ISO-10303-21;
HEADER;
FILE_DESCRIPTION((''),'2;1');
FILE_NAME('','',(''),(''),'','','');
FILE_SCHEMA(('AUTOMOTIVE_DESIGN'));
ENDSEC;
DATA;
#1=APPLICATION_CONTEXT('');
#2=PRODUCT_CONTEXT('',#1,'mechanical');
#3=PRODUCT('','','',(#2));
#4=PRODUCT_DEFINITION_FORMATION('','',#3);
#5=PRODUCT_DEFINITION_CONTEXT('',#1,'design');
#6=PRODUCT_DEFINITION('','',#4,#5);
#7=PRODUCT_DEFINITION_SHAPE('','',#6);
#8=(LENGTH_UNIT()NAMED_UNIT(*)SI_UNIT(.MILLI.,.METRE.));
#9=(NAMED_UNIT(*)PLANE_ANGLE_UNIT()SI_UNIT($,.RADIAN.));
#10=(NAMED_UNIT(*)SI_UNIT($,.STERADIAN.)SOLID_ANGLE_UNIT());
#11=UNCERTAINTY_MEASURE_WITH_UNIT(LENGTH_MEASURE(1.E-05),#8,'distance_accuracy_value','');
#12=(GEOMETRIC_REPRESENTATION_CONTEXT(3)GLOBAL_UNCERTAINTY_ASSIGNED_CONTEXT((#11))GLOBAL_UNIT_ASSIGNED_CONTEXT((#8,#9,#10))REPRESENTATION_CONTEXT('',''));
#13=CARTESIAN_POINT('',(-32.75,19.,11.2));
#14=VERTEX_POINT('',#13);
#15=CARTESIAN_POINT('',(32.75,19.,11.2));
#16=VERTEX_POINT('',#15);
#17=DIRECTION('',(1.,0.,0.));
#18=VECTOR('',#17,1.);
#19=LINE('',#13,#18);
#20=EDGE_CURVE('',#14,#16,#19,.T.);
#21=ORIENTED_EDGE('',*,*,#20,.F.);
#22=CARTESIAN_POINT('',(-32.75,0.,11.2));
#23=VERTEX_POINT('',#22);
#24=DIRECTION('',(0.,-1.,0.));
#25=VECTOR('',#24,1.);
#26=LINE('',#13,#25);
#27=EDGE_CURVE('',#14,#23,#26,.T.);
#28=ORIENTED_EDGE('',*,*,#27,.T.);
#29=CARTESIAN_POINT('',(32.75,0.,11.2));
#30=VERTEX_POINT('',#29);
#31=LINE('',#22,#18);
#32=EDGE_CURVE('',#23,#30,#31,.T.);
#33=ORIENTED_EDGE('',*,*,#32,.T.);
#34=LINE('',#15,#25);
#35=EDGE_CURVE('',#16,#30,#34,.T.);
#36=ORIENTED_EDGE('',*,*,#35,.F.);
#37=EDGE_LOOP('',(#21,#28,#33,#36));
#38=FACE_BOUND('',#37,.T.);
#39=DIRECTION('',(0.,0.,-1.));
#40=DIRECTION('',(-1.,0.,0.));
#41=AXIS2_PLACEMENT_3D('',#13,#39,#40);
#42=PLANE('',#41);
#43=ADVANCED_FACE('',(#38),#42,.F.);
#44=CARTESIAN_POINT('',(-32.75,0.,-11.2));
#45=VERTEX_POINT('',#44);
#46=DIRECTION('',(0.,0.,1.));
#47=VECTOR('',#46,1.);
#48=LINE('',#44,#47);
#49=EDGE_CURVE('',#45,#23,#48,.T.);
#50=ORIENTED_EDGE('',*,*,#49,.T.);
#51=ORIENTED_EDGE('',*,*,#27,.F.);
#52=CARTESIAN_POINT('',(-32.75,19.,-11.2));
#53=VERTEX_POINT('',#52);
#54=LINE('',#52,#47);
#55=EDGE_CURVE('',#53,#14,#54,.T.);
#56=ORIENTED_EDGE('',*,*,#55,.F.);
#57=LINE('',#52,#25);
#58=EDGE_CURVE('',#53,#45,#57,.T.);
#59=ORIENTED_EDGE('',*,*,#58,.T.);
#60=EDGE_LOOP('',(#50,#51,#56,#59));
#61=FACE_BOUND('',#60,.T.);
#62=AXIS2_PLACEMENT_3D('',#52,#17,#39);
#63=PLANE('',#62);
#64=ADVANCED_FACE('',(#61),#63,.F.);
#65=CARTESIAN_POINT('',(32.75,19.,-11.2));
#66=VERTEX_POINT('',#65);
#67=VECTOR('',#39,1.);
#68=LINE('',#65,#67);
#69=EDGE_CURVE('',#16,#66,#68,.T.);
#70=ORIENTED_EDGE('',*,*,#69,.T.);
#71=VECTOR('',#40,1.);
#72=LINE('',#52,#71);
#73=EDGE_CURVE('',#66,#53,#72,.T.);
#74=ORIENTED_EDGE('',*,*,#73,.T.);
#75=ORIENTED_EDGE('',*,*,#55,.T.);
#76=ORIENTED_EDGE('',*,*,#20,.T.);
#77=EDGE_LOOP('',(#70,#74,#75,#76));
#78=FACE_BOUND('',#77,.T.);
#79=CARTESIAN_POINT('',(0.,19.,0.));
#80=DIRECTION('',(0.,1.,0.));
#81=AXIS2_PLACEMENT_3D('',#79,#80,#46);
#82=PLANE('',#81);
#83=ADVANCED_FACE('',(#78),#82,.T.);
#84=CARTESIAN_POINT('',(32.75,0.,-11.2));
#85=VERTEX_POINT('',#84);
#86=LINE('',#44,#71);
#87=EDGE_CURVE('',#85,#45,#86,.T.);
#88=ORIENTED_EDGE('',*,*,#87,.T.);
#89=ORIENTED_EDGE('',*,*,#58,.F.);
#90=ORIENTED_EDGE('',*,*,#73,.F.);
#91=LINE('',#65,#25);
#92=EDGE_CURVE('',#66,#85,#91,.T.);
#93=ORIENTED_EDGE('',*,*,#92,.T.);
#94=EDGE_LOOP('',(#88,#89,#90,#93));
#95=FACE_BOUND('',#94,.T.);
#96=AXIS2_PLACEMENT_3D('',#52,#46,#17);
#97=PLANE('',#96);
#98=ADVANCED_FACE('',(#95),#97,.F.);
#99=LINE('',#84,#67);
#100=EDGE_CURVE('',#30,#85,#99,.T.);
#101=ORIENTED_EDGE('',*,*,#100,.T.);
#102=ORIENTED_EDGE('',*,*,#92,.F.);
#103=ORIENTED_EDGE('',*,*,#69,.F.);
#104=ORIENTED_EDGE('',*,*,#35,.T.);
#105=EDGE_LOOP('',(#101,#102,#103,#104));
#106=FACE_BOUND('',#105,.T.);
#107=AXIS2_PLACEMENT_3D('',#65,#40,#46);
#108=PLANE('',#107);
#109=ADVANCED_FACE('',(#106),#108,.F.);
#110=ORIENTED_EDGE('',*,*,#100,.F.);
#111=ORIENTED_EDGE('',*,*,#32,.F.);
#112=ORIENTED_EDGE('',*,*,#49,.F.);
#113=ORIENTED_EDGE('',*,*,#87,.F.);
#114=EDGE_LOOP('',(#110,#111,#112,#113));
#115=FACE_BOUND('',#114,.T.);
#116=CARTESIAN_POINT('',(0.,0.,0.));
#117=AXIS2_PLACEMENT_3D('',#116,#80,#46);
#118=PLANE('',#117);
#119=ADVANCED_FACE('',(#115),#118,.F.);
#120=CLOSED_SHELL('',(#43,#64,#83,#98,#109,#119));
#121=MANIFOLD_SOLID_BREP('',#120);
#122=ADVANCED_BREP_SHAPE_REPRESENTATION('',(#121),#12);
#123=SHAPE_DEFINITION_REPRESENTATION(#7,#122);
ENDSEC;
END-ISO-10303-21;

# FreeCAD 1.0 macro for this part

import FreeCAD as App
import Part
import Sketcher
Q = App.Units.Quantity


def add_polygon(sketch, points):
    """Adds a closed chain of lines whose ends are joined by coincident constraints."""
    first, n = sketch.GeometryCount, len(points)
    for a, b in zip(points, points[1:] + points[:1]):
        sketch.addGeometry(Part.LineSegment(App.Vector(*a, 0), App.Vector(*b, 0)), False)
    for i in range(n):
        sketch.addConstraint(Sketcher.Constraint("Coincident", first + i, 2, first + (i + 1) % n, 1))

doc = App.newDocument("Part")
params = doc.addObject("Spreadsheet::Sheet", "Params")
for row, (alias, value) in enumerate([
    ("sketch1_width", "65.5 mm"),
    ("sketch1_height", "22.4 mm"),
    ("pad1_length", "19 mm"),
], start=1):
    params.set(f"A{row}", alias)
    params.set(f"B{row}", "=" + value)
    params.setAlias(f"B{row}", alias)

body = doc.addObject("PartDesign::Body", "Body")

# Sketch on XZ plane
sketch1 = body.newObject("Sketcher::SketchObject", "Sketch")
sketch1.AttachmentSupport = (doc.getObject("XZ_Plane"), [""])
sketch1.MapMode = "FlatFace"
add_polygon(sketch1, [(-32.75, -11.2), (-32.75, 11.2), (32.75, 11.2), (32.75, -11.2)])  # lines 0-3
sketch1.addConstraint([
    Sketcher.Constraint("Vertical", 0),
    Sketcher.Constraint("Horizontal", 1),
    Sketcher.Constraint("Vertical", 2),
    Sketcher.Constraint("Horizontal", 3),
    Sketcher.Constraint("Symmetric", 0, 2, 2, 2, -1, 1),
    Sketcher.Constraint("DistanceX", 1, 1, 1, 2, Q("65.5 mm")),
    Sketcher.Constraint("DistanceY", 0, 1, 0, 2, Q("22.4 mm")),
])
sketch1.setExpression("Constraints[9]", "Params.sketch1_width")
sketch1.setExpression("Constraints[10]", "Params.sketch1_height")
pad1 = body.newObject("PartDesign::Pad", "Pad")
pad1.Profile = sketch1
pad1.setExpression("Length", "Params.pad1_length")
pad1.Reversed = True

doc.recompute()
